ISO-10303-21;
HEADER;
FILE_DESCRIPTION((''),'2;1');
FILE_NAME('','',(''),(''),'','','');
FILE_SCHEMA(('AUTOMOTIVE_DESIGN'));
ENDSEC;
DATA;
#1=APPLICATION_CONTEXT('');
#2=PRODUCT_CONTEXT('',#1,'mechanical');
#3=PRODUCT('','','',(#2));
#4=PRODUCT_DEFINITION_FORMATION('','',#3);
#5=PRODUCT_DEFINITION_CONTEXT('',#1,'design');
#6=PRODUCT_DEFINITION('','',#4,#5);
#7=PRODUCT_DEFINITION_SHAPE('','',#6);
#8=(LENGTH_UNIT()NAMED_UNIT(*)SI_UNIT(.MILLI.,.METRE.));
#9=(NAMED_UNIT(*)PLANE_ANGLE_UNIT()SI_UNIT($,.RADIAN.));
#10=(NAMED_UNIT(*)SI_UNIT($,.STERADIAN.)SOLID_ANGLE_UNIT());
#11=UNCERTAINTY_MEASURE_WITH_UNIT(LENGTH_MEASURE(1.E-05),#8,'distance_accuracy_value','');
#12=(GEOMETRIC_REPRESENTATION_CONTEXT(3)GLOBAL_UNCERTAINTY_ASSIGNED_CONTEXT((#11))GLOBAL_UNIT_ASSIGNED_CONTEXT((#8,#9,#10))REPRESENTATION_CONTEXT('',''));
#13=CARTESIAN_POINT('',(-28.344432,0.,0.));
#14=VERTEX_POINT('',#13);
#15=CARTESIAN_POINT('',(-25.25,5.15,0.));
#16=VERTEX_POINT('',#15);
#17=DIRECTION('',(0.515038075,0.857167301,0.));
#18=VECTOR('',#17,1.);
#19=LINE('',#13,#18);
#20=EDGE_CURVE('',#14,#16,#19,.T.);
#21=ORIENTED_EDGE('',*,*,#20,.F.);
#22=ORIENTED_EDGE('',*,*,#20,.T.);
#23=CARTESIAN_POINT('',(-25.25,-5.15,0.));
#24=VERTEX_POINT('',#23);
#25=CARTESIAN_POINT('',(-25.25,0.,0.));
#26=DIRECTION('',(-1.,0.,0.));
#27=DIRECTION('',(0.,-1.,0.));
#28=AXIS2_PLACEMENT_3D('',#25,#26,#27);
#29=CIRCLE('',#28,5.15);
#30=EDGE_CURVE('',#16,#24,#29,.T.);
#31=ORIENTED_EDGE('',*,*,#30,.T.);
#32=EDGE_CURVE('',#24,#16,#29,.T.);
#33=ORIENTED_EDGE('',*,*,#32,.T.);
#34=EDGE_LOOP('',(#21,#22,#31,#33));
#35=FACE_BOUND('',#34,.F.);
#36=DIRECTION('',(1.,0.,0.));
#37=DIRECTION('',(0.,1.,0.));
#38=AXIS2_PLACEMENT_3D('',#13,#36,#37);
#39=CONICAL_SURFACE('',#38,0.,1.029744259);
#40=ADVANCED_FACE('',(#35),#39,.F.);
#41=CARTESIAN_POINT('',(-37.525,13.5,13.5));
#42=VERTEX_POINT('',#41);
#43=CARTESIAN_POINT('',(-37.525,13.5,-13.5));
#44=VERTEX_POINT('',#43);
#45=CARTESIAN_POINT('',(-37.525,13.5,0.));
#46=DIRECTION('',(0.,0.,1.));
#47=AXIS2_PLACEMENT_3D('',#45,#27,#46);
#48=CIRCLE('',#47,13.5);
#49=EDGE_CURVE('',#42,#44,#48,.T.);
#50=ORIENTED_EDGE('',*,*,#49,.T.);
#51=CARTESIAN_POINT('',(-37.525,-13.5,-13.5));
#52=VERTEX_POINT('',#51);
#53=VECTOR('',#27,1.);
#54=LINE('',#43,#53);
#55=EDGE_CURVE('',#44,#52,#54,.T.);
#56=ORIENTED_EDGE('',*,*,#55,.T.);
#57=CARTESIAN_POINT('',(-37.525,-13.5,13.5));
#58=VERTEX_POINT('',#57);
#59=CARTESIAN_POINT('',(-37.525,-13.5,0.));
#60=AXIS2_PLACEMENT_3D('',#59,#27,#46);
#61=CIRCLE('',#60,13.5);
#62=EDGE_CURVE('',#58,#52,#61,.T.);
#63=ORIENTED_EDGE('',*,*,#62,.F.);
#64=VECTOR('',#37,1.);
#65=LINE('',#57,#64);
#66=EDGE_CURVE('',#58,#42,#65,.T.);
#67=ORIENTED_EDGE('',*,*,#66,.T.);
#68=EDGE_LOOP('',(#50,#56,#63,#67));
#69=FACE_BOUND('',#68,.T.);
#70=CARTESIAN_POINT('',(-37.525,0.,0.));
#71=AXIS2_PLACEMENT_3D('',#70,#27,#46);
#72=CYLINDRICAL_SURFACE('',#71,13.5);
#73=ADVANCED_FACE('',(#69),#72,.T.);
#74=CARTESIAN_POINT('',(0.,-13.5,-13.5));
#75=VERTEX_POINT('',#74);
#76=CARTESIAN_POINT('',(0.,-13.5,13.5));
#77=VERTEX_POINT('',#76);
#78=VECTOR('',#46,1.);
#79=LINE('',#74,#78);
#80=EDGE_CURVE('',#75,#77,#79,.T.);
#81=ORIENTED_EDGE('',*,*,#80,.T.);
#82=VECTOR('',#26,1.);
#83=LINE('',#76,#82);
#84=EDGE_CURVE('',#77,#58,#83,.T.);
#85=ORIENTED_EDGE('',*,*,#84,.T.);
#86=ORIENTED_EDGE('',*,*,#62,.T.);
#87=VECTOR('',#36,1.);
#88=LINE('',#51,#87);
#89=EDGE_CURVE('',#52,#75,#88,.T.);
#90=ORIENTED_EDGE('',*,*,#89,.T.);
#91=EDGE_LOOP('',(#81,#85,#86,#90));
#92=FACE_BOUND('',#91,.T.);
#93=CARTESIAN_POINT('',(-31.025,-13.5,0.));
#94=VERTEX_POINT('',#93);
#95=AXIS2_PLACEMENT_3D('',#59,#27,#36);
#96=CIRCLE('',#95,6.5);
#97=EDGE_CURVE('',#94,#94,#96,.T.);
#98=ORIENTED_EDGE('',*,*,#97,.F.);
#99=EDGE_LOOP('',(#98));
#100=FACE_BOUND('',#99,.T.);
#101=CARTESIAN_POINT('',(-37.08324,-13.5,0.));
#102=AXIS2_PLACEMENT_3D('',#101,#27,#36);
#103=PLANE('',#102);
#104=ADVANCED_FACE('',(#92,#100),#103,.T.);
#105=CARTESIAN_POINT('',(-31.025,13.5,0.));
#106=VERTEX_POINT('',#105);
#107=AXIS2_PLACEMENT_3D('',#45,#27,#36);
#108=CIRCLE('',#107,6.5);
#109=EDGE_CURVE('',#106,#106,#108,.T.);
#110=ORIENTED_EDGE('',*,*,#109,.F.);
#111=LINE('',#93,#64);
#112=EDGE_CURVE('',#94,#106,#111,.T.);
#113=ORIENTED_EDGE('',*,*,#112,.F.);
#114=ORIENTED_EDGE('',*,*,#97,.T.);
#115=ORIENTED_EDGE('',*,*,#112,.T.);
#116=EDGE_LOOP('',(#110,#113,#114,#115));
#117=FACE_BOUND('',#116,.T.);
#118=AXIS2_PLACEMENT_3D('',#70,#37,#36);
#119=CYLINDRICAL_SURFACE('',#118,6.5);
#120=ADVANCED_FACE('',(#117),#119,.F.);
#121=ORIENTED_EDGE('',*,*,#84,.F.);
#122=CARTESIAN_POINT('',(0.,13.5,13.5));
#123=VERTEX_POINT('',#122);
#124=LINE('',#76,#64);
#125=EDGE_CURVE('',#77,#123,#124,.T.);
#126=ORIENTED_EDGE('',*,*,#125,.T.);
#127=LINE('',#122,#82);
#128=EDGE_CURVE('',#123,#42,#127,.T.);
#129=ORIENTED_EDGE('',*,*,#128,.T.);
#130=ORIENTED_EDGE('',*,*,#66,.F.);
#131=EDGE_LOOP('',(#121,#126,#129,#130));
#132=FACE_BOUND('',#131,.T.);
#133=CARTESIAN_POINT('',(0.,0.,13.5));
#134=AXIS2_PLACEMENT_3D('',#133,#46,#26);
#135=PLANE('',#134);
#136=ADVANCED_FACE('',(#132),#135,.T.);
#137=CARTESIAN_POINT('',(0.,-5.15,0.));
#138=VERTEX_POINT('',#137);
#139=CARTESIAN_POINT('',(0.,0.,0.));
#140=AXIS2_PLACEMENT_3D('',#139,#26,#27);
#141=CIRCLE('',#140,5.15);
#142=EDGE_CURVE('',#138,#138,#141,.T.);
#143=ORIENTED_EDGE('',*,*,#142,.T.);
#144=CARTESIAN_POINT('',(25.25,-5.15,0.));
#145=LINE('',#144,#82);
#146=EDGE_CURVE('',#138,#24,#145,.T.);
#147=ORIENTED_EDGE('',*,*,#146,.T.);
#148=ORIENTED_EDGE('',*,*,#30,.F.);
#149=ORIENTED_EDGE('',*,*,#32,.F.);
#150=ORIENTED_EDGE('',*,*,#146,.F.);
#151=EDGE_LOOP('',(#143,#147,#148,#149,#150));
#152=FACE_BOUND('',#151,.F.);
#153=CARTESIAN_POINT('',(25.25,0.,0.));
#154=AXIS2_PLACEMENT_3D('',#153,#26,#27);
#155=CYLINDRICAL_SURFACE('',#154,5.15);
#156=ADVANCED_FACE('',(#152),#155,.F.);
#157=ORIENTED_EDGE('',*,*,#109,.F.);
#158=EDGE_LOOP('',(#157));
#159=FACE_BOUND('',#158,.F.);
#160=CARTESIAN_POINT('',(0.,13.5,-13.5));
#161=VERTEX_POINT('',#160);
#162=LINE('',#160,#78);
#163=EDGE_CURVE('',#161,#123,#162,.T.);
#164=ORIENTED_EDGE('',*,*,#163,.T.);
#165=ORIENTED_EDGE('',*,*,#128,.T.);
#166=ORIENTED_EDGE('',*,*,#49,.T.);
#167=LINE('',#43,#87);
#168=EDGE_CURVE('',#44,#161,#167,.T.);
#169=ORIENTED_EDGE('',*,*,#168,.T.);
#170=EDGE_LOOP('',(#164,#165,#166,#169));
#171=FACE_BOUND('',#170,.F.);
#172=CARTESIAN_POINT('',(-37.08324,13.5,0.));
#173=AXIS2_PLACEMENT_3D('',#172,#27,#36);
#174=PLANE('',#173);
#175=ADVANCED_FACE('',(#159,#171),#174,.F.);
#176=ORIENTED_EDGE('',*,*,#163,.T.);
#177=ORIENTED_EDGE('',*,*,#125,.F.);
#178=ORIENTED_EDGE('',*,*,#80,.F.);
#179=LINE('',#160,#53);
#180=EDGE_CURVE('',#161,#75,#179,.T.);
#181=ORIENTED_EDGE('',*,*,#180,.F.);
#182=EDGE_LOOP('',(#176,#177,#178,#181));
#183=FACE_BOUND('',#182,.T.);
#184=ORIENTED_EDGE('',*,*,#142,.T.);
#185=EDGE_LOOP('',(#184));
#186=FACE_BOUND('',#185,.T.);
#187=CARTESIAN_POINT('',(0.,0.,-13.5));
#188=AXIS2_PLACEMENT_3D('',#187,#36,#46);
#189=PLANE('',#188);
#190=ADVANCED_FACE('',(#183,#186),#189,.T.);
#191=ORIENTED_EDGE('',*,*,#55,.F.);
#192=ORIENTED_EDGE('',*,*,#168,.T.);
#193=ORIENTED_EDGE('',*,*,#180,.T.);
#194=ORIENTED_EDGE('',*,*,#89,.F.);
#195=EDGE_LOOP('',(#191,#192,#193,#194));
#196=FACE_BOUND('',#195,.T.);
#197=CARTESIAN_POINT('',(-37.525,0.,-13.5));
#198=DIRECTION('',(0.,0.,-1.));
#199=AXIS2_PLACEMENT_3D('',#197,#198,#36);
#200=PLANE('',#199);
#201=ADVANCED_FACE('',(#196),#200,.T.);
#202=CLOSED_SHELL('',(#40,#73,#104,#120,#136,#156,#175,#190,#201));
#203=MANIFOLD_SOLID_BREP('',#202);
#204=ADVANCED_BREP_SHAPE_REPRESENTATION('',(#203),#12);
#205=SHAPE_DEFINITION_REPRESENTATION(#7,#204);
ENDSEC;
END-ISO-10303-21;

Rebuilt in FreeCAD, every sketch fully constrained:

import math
import FreeCAD as App
import Part
import Sketcher
Q = App.Units.Quantity

doc = App.newDocument("Part")
body = doc.addObject("PartDesign::Body", "Body")

# Sketch on XZ plane
sketch1 = doc.addObject("Sketcher::SketchObject", "Sketch")
body.addObject(sketch1)
sketch1.AttachmentSupport = (doc.XZ_Plane, [""])
sketch1.MapMode = "FlatFace"
sketch1.addGeometry([
    Part.ArcOfCircle(Part.Circle(App.Vector(-38, 0, 0), App.Vector(0, 0, 1), 14), math.radians(90), math.radians(270)),  # 0
    Part.LineSegment(App.Vector(-38, -14, 0), App.Vector(0, -14, 0)),  # 1
    Part.LineSegment(App.Vector(0, -14, 0), App.Vector(0, 14, 0)),  # 2
    Part.LineSegment(App.Vector(0, 14, 0), App.Vector(-38, 14, 0)),  # 3
    Part.Circle(App.Vector(-38, 0, 0), App.Vector(0, 0, 1), 6),  # 4
], False)
sketch1.addConstraint([
    Sketcher.Constraint("Tangent", 0, 2, 1, 1),
    Sketcher.Constraint("Coincident", 1, 2, 2, 1),
    Sketcher.Constraint("Coincident", 2, 2, 3, 1),
    Sketcher.Constraint("Tangent", 3, 2, 0, 1),
    Sketcher.Constraint("Horizontal", 1),
    Sketcher.Constraint("Vertical", 2),
    Sketcher.Constraint("Horizontal", 3),
    Sketcher.Constraint("Coincident", 4, 3, 0, 3),
    Sketcher.Constraint("Symmetric", 1, 2, 2, 2, -1, 1),
    Sketcher.Constraint("Diameter", 4, Q("13 mm")),
    Sketcher.Constraint("Radius", 0, Q("13.5 mm")),
    Sketcher.Constraint("DistanceX", 1, 1, 1, 2, Q("37.525 mm")),
])
pad1 = doc.addObject("PartDesign::Pad", "Pad")
body.addObject(pad1)
pad1.Profile = sketch1
pad1.Length = 27
pad1.Midplane = True

# Sketch on YZ plane
sketch2 = doc.addObject("Sketcher::SketchObject", "Sketch001")
body.addObject(sketch2)
sketch2.AttachmentSupport = (doc.YZ_Plane, [""])
sketch2.MapMode = "FlatFace"
sketch2.addGeometry(Part.Circle(App.Vector(0, 0, 0), App.Vector(0, 0, 1), 5), False)
sketch2.addConstraint([
    Sketcher.Constraint("Coincident", 0, 3, -1, 1),
    Sketcher.Constraint("Diameter", 0, Q("10.3 mm")),
])
doc.recompute()
hole = doc.addObject("PartDesign::Hole", "Hole")
body.addObject(hole)
hole.Profile = sketch2
hole.ThreadType = "None"
hole.Diameter = 10.3
hole.DepthType = "Dimension"
hole.Depth = 25.25
hole.DrillPoint = "Angled"
hole.DrillPointAngle = 118

doc.recompute()
